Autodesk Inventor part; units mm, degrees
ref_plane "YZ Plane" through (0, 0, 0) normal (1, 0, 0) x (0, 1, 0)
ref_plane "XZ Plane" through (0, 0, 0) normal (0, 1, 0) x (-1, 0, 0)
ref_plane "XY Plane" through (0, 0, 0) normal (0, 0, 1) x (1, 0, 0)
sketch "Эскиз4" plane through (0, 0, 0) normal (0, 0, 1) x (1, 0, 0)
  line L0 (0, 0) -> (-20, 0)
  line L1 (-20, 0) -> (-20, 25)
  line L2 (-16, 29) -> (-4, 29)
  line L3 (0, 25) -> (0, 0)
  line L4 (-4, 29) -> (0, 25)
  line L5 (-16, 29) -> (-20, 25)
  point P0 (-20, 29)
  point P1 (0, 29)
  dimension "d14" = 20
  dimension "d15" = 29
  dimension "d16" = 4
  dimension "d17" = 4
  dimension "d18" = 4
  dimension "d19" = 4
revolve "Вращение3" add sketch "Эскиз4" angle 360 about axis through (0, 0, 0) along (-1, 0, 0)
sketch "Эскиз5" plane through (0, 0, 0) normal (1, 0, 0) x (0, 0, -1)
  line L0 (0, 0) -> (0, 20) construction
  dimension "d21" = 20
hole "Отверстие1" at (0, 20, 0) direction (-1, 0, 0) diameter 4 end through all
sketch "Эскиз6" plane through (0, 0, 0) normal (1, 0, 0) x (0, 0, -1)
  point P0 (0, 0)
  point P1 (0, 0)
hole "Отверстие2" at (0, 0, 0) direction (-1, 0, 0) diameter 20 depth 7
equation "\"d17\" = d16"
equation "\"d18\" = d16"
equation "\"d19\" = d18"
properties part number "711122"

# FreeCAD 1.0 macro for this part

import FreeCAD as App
import Part
import Sketcher
Q = App.Units.Quantity


def add_polygon(sketch, points):
    """Adds a closed chain of lines whose ends are joined by coincident constraints."""
    first, n = sketch.GeometryCount, len(points)
    for a, b in zip(points, points[1:] + points[:1]):
        sketch.addGeometry(Part.LineSegment(App.Vector(*a, 0), App.Vector(*b, 0)), False)
    for i in range(n):
        sketch.addConstraint(Sketcher.Constraint("Coincident", first + i, 2, first + (i + 1) % n, 1))

doc = App.newDocument("Part")
body = doc.addObject("PartDesign::Body", "Body")

# Sketch on XY plane
sketch1 = doc.addObject("Sketcher::SketchObject", "Sketch")
body.addObject(sketch1)
sketch1.AttachmentSupport = (doc.XY_Plane, [""])
sketch1.MapMode = "FlatFace"
add_polygon(sketch1, [(-20, 0), (0, 0), (0, 25), (-4, 29), (-16, 29), (-20, 25)])  # lines 0-5
sketch1.addConstraint([
    Sketcher.Constraint("Horizontal", 0),
    Sketcher.Constraint("Vertical", 1),
    Sketcher.Constraint("Horizontal", 3),
    Sketcher.Constraint("Vertical", 5),
    Sketcher.Constraint("Coincident", 0, 2, -1, 1),
    Sketcher.Constraint("Perpendicular", 2, 4),
    Sketcher.Constraint("Horizontal", 1, 2, 4, 2),
    Sketcher.Constraint("Equal", 2, 4),
    Sketcher.Constraint("DistanceX", 0, 1, 0, 2, Q("20 mm")),
    Sketcher.Constraint("DistanceX", 2, 2, -1, 1, Q("4 mm")),
    Sketcher.Constraint("DistanceY", -1, 1, 2, 2, Q("29 mm")),
])
revolution = doc.addObject("PartDesign::Revolution", "Revolution")
body.addObject(revolution)
revolution.Profile = sketch1
revolution.ReferenceAxis = (sketch1, ["H_Axis"])
revolution.Angle = 360

# Sketch on YZ plane
sketch2 = doc.addObject("Sketcher::SketchObject", "Sketch001")
body.addObject(sketch2)
sketch2.AttachmentSupport = (doc.YZ_Plane, [""])
sketch2.MapMode = "FlatFace"
sketch2.addGeometry(Part.Circle(App.Vector(20, 0, 0), App.Vector(0, 0, 1), 2), False)
sketch2.addConstraint([
    Sketcher.Constraint("PointOnObject", 0, 3, -1),
    Sketcher.Constraint("Diameter", 0, Q("4 mm")),
    Sketcher.Constraint("DistanceX", -1, 1, 0, 3, Q("20 mm")),
])
doc.recompute()
hole = doc.addObject("PartDesign::Hole", "Hole")
body.addObject(hole)
hole.Profile = sketch2
hole.ThreadType = "None"
hole.Diameter = 4
hole.DepthType = "ThroughAll"

# Sketch on YZ plane
sketch3 = doc.addObject("Sketcher::SketchObject", "Sketch002")
body.addObject(sketch3)
sketch3.AttachmentSupport = (doc.YZ_Plane, [""])
sketch3.MapMode = "FlatFace"
sketch3.addGeometry(Part.Circle(App.Vector(0, 0, 0), App.Vector(0, 0, 1), 10), False)
sketch3.addConstraint([
    Sketcher.Constraint("Coincident", 0, 3, -1, 1),
    Sketcher.Constraint("Diameter", 0, Q("20 mm")),
])
doc.recompute()
hole2 = doc.addObject("PartDesign::Hole", "Hole001")
body.addObject(hole2)
hole2.Profile = sketch3
hole2.ThreadType = "None"
hole2.Diameter = 20
hole2.DepthType = "Dimension"
hole2.Depth = 7
hole2.DrillPoint = "Flat"

doc.recompute()
